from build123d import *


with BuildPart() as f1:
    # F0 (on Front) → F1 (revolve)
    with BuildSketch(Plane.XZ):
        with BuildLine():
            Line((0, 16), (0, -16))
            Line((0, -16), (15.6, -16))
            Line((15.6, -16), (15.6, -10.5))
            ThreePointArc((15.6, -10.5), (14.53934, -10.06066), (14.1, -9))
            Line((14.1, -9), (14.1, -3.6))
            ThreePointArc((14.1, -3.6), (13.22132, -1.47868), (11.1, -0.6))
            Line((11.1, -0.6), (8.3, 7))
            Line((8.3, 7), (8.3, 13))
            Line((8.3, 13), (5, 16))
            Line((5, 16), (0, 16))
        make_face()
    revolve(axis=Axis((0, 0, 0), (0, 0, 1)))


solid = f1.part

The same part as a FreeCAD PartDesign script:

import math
import FreeCAD as App
import Part
import Sketcher
from FreeCAD import Vector

doc = App.newDocument("Part")
body = doc.addObject("PartDesign::Body", "Body")

# Sketch on XZ plane
sketch1 = body.newObject("Sketcher::SketchObject", "Sketch")
sketch1.AttachmentSupport = (doc.getObject("XZ_Plane"), [""])
sketch1.MapMode = "FlatFace"
sketch1.addGeometry(Part.LineSegment(Vector(0, 16, 0), Vector(0, -16, 0)), False)
sketch1.addGeometry(Part.LineSegment(Vector(0, -16, 0), Vector(15.6, -16, 0)), False)
sketch1.addGeometry(Part.LineSegment(Vector(15.6, -16, 0), Vector(15.6, -10.5, 0)), False)
sketch1.addGeometry(Part.ArcOfCircle(Part.Circle(Vector(15.600001, -8.999999, 0), Vector(0, 0, 1), 1.500001), math.radians(-179.999978), math.radians(-90.000022)), False)
sketch1.addGeometry(Part.LineSegment(Vector(14.1, -9, 0), Vector(14.1, -3.6, 0)), False)
sketch1.addGeometry(Part.ArcOfCircle(Part.Circle(Vector(11.099999, -3.600001, 0), Vector(0, 0, 1), 3.000001), math.radians(0.000022), math.radians(89.999978)), False)
sketch1.addGeometry(Part.LineSegment(Vector(11.1, -0.6, 0), Vector(8.3, 7, 0)), False)
sketch1.addGeometry(Part.LineSegment(Vector(8.3, 7, 0), Vector(8.3, 13, 0)), False)
sketch1.addGeometry(Part.LineSegment(Vector(8.3, 13, 0), Vector(5, 16, 0)), False)
sketch1.addGeometry(Part.LineSegment(Vector(5, 16, 0), Vector(0, 16, 0)), False)
sketch1.addConstraint(Sketcher.Constraint("Coincident", 0, 2, 1, 1))
sketch1.addConstraint(Sketcher.Constraint("Coincident", 1, 2, 2, 1))
sketch1.addConstraint(Sketcher.Constraint("Coincident", 2, 2, 3, 2))
sketch1.addConstraint(Sketcher.Constraint("Tangent", 3, 1, 4, 1))
sketch1.addConstraint(Sketcher.Constraint("Tangent", 4, 2, 5, 1))
sketch1.addConstraint(Sketcher.Constraint("Coincident", 5, 2, 6, 1))
sketch1.addConstraint(Sketcher.Constraint("Coincident", 6, 2, 7, 1))
sketch1.addConstraint(Sketcher.Constraint("Coincident", 7, 2, 8, 1))
sketch1.addConstraint(Sketcher.Constraint("Coincident", 8, 2, 9, 1))
sketch1.addConstraint(Sketcher.Constraint("Coincident", 9, 2, 0, 1))
sketch1.addConstraint(Sketcher.Constraint("Vertical", 0))
sketch1.addConstraint(Sketcher.Constraint("Horizontal", 1))
sketch1.addConstraint(Sketcher.Constraint("Vertical", 2))
sketch1.addConstraint(Sketcher.Constraint("Vertical", 4))
sketch1.addConstraint(Sketcher.Constraint("Vertical", 7))
sketch1.addConstraint(Sketcher.Constraint("Horizontal", 9))
sketch1.addConstraint(Sketcher.Constraint("Symmetric", 0, 2, 9, 2, -1, 1))
sketch1.addConstraint(Sketcher.Constraint("Vertical", 3, 3, 1, 2))
sketch1.addConstraint(Sketcher.Constraint("Radius", 5, 3.000001))
sketch1.addConstraint(Sketcher.Constraint("Radius", 3, 1.500001))
sketch1.addConstraint(Sketcher.Constraint("DistanceX", 9, 2, 9, 1, 5.0))
sketch1.addConstraint(Sketcher.Constraint("DistanceY", 0, 2, 0, 1, 32.0))
sketch1.addConstraint(Sketcher.Constraint("DistanceY", 7, 1, 7, 2, 6.0))
sketch1.addConstraint(Sketcher.Constraint("DistanceX", 1, 1, 1, 2, 15.6))
sketch1.addConstraint(Sketcher.Constraint("DistanceY", 2, 1, 2, 2, 5.5))
sketch1.addConstraint(Sketcher.Constraint("DistanceY", 4, 1, 4, 2, 5.4))
sketch1.addConstraint(Sketcher.Constraint("DistanceY", -1, 1, 6, 2, 7.0))
sketch1.addConstraint(Sketcher.Constraint("DistanceX", 5, 2, 4, 2, 3.0))
sketch1.addConstraint(Sketcher.Constraint("DistanceX", -1, 1, 6, 2, 8.3))
revolution = body.newObject("PartDesign::Revolution", "Revolution")
revolution.Profile = sketch1
revolution.ReferenceAxis = (sketch1, ["V_Axis"])
revolution.Angle = 360

doc.recompute()
